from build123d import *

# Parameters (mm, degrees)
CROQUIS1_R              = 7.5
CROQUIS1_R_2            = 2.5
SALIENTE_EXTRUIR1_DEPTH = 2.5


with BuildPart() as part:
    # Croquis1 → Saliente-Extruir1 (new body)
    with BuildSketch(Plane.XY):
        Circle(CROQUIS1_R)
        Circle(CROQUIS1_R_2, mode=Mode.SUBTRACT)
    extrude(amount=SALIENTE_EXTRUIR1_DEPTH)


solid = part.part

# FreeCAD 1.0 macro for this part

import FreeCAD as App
import Part
import Sketcher

V = App.Vector

doc = App.newDocument("Part")
body = doc.addObject("PartDesign::Body", "Body")

# Sketch on XY plane
sketch1 = body.newObject("Sketcher::SketchObject", "Sketch")
sketch1.AttachmentSupport = (doc.getObject("XY_Plane"), [""])
sketch1.MapMode = "FlatFace"
sketch1.addGeometry([
    Part.Circle(V(0, 0, 0), V(0, 0, 1), 7.5),
    Part.Circle(V(0, 0, 0), V(0, 0, 1), 2.5),
], False)
sketch1.addConstraint([
    Sketcher.Constraint("Coincident", 0, 3, -1, 1),
    Sketcher.Constraint("Coincident", 1, 3, -1, 1),
    Sketcher.Constraint("Diameter", 0, 15.0),
    Sketcher.Constraint("Diameter", 1, 5.0),
])
pad1 = body.newObject("PartDesign::Pad", "Pad")
pad1.Profile = sketch1
pad1.Length = 2.5

doc.recompute()
